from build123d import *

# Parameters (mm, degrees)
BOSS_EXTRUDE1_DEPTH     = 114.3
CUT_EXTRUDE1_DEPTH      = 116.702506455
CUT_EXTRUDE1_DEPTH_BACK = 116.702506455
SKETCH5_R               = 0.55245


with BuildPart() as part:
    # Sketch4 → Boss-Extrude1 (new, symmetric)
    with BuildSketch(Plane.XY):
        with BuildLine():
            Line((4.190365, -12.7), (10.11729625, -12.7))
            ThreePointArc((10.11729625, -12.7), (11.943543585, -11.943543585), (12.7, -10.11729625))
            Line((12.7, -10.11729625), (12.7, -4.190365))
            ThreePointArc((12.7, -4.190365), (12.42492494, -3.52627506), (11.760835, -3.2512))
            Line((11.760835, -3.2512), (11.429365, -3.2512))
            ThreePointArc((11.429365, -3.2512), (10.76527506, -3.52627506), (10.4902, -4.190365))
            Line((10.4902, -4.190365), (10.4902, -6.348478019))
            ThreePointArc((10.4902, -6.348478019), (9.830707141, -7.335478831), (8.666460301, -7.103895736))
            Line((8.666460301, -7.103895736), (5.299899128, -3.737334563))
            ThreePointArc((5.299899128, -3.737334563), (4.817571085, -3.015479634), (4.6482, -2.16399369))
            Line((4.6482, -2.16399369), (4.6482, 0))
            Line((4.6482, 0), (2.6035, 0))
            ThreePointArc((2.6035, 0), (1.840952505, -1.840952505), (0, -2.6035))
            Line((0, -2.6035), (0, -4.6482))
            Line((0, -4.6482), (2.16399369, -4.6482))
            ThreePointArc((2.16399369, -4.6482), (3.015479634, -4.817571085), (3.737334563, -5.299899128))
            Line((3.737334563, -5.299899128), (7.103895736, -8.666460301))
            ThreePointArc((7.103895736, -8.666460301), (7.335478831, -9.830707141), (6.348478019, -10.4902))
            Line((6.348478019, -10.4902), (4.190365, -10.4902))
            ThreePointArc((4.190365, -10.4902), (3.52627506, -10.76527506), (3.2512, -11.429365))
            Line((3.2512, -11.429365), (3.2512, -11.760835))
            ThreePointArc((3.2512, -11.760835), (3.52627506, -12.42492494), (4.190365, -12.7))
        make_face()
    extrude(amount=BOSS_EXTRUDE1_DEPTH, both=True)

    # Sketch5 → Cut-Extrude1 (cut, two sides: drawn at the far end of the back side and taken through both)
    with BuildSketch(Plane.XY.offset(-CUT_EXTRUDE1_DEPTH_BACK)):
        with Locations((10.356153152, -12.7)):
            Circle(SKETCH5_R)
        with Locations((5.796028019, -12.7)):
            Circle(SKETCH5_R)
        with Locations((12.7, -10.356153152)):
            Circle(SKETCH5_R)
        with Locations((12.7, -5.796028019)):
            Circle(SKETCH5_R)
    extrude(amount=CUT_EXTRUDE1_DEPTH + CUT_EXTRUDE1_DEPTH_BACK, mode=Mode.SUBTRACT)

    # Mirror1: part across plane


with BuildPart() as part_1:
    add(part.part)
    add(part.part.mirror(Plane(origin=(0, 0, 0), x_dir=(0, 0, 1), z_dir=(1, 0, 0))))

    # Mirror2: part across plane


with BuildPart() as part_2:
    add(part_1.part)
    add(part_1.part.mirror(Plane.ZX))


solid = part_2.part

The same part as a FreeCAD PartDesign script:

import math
import FreeCAD as App
import Part
import Sketcher
from FreeCAD import Vector
Q = App.Units.Quantity

doc = App.newDocument("Part")
body = doc.addObject("PartDesign::Body", "Body")

# Sketch on XY plane
sketch1 = body.newObject("Sketcher::SketchObject", "Sketch")
sketch1.AttachmentSupport = (doc.getObject("XY_Plane"), [""])
sketch1.MapMode = "FlatFace"
sketch1.addGeometry(Part.LineSegment(Vector(4.190365, -12.7, 0), Vector(10.117296, -12.7, 0)), False)
sketch1.addGeometry(Part.ArcOfCircle(Part.Circle(Vector(10.117296, -10.117296, 0), Vector(0, 0, 1), 2.582704), math.radians(-90), math.radians(0)), False)
sketch1.addGeometry(Part.LineSegment(Vector(12.7, -10.117296, 0), Vector(12.7, -4.190365, 0)), False)
sketch1.addGeometry(Part.ArcOfCircle(Part.Circle(Vector(11.760835, -4.190365, 0), Vector(0, 0, 1), 0.939165), math.radians(0), math.radians(90)), False)
sketch1.addGeometry(Part.LineSegment(Vector(11.760835, -3.2512, 0), Vector(11.429365, -3.2512, 0)), False)
sketch1.addGeometry(Part.ArcOfCircle(Part.Circle(Vector(11.429365, -4.190365, 0), Vector(0, 0, 1), 0.939165), math.radians(90), math.radians(180)), False)
sketch1.addGeometry(Part.LineSegment(Vector(10.4902, -4.190365, 0), Vector(10.4902, -6.348478, 0)), False)
sketch1.addGeometry(Part.ArcOfCircle(Part.Circle(Vector(9.421878, -6.348478, 0), Vector(0, 0, 1), 1.068322), math.radians(-135), math.radians(0)), False)
sketch1.addGeometry(Part.LineSegment(Vector(8.66646, -7.103896, 0), Vector(5.299899, -3.737335, 0)), False)
sketch1.addGeometry(Part.ArcOfCircle(Part.Circle(Vector(6.87324, -2.163994, 0), Vector(0, 0, 1), 2.22504), math.radians(-180), math.radians(-135)), False)
sketch1.addGeometry(Part.LineSegment(Vector(4.6482, -2.163994, 0), Vector(4.6482, 0, 0)), False)
sketch1.addGeometry(Part.LineSegment(Vector(4.6482, 0, 0), Vector(2.6035, 0, 0)), False)
sketch1.addGeometry(Part.ArcOfCircle(Part.Circle(Vector(0, 0, 0), Vector(0, 0, 1), 2.6035), math.radians(-90), math.radians(0)), False)
sketch1.addGeometry(Part.LineSegment(Vector(0, -2.6035, 0), Vector(0, -4.6482, 0)), False)
sketch1.addGeometry(Part.LineSegment(Vector(0, -4.6482, 0), Vector(2.163994, -4.6482, 0)), False)
sketch1.addGeometry(Part.ArcOfCircle(Part.Circle(Vector(2.163994, -6.87324, 0), Vector(0, 0, 1), 2.22504), math.radians(45), math.radians(90)), False)
sketch1.addGeometry(Part.LineSegment(Vector(3.737335, -5.299899, 0), Vector(7.103896, -8.66646, 0)), False)
sketch1.addGeometry(Part.ArcOfCircle(Part.Circle(Vector(6.348478, -9.421878, 0), Vector(0, 0, 1), 1.068322), math.radians(-90), math.radians(45)), False)
sketch1.addGeometry(Part.LineSegment(Vector(6.348478, -10.4902, 0), Vector(4.190365, -10.4902, 0)), False)
sketch1.addGeometry(Part.ArcOfCircle(Part.Circle(Vector(4.190365, -11.429365, 0), Vector(0, 0, 1), 0.939165), math.radians(90), math.radians(180)), False)
sketch1.addGeometry(Part.LineSegment(Vector(3.2512, -11.429365, 0), Vector(3.2512, -11.760835, 0)), False)
sketch1.addGeometry(Part.ArcOfCircle(Part.Circle(Vector(4.190365, -11.760835, 0), Vector(0, 0, 1), 0.939165), math.radians(-180), math.radians(-90)), False)
sketch1.addConstraint(Sketcher.Constraint("Tangent", 0, 2, 1, 1))
sketch1.addConstraint(Sketcher.Constraint("Tangent", 1, 2, 2, 1))
sketch1.addConstraint(Sketcher.Constraint("Tangent", 2, 2, 3, 1))
sketch1.addConstraint(Sketcher.Constraint("Tangent", 3, 2, 4, 1))
sketch1.addConstraint(Sketcher.Constraint("Tangent", 4, 2, 5, 1))
sketch1.addConstraint(Sketcher.Constraint("Tangent", 5, 2, 6, 1))
sketch1.addConstraint(Sketcher.Constraint("Tangent", 6, 2, 7, 2))
sketch1.addConstraint(Sketcher.Constraint("Tangent", 7, 1, 8, 1))
sketch1.addConstraint(Sketcher.Constraint("Tangent", 8, 2, 9, 2))
sketch1.addConstraint(Sketcher.Constraint("Tangent", 9, 1, 10, 1))
sketch1.addConstraint(Sketcher.Constraint("Coincident", 10, 2, 11, 1))
sketch1.addConstraint(Sketcher.Constraint("Coincident", 11, 2, 12, 2))
sketch1.addConstraint(Sketcher.Constraint("Coincident", 12, 1, 13, 1))
sketch1.addConstraint(Sketcher.Constraint("Coincident", 13, 2, 14, 1))
sketch1.addConstraint(Sketcher.Constraint("Tangent", 14, 2, 15, 2))
sketch1.addConstraint(Sketcher.Constraint("Tangent", 15, 1, 16, 1))
sketch1.addConstraint(Sketcher.Constraint("Tangent", 16, 2, 17, 2))
sketch1.addConstraint(Sketcher.Constraint("Tangent", 17, 1, 18, 1))
sketch1.addConstraint(Sketcher.Constraint("Tangent", 18, 2, 19, 1))
sketch1.addConstraint(Sketcher.Constraint("Tangent", 19, 2, 20, 1))
sketch1.addConstraint(Sketcher.Constraint("Tangent", 20, 2, 21, 1))
sketch1.addConstraint(Sketcher.Constraint("Tangent", 21, 2, 0, 1))
sketch1.addConstraint(Sketcher.Constraint("Horizontal", 0))
sketch1.addConstraint(Sketcher.Constraint("Vertical", 2))
sketch1.addConstraint(Sketcher.Constraint("Horizontal", 4))
sketch1.addConstraint(Sketcher.Constraint("Vertical", 6))
sketch1.addConstraint(Sketcher.Constraint("Vertical", 10))
sketch1.addConstraint(Sketcher.Constraint("Horizontal", 11))
sketch1.addConstraint(Sketcher.Constraint("Vertical", 13))
sketch1.addConstraint(Sketcher.Constraint("Horizontal", 14))
sketch1.addConstraint(Sketcher.Constraint("Horizontal", 18))
sketch1.addConstraint(Sketcher.Constraint("Vertical", 20))
sketch1.addConstraint(Sketcher.Constraint("Coincident", 12, 3, -1, 1))
sketch1.addConstraint(Sketcher.Constraint("Equal", 3, 5))
sketch1.addConstraint(Sketcher.Constraint("Equal", 9, 15))
sketch1.addConstraint(Sketcher.Constraint("Equal", 7, 17))
sketch1.addConstraint(Sketcher.Constraint("Equal", 5, 19))
sketch1.addConstraint(Sketcher.Constraint("Equal", 19, 21))
sketch1.addConstraint(Sketcher.Constraint("PointOnObject", 10, 2, -1))
sketch1.addConstraint(Sketcher.Constraint("PointOnObject", 12, 1, -2))
sketch1.addConstraint(Sketcher.Constraint("Parallel", 8, 16))
sketch1.addConstraint(Sketcher.Constraint("Equal", 0, 2))
sketch1.addConstraint(Sketcher.Constraint("Equal", 18, 6))
sketch1.addConstraint(Sketcher.Constraint("Equal", 14, 10))
sketch1.addConstraint(Sketcher.Constraint("Equal", 11, 13))
sketch1.addConstraint(Sketcher.Constraint("Equal", 4, 20))
sketch1.addConstraint(Sketcher.Constraint("Equal", 8, 16))
sketch1.addConstraint(Sketcher.Constraint("DistanceY", 0, 2, -1, 1, Q("0.5 in")))
sketch1.addConstraint(Sketcher.Constraint("Radius", 9, Q("0.0876 in")))
sketch1.addConstraint(Sketcher.Constraint("Radius", 12, Q("0.1025 in")))
sketch1.addConstraint(Sketcher.Constraint("DistanceX", 9, 1, 5, 2, Q("0.23 in")))
sketch1.addConstraint(Sketcher.Constraint("DistanceX", 11, 2, 11, 1, Q("0.0805 in")))
sketch1.addConstraint(Sketcher.Constraint("DistanceY", 3, 2, -1, 1, Q("0.128 in")))
sketch1.addConstraint(Sketcher.Constraint("Radius", 7, 1.068322))
sketch1.addConstraint(Sketcher.Constraint("DistanceX", 17, 3, 7, 3, Q("0.121 in")))
sketch1.addConstraint(Sketcher.Constraint("Radius", 1, 2.582704))
sketch1.addConstraint(Sketcher.Constraint("Radius", 3, 0.939165))
pad1 = body.newObject("PartDesign::Pad", "Pad")
pad1.Profile = sketch1
pad1.Length = Q("9 in")
pad1.Midplane = True

# Sketch on XY plane
sketch2 = body.newObject("Sketcher::SketchObject", "Sketch001")
sketch2.AttachmentSupport = (doc.getObject("XY_Plane"), [""])
sketch2.MapMode = "FlatFace"
sketch2.addGeometry(Part.Circle(Vector(10.356153, -12.7, 0), Vector(0, 0, 1), 0.55245), False)
sketch2.addGeometry(Part.Circle(Vector(5.796028, -12.7, 0), Vector(0, 0, 1), 0.55245), False)
sketch2.addGeometry(Part.Circle(Vector(12.7, -10.356153, 0), Vector(0, 0, 1), 0.55245), False)
sketch2.addGeometry(Part.Circle(Vector(12.7, -5.796028, 0), Vector(0, 0, 1), 0.55245), False)
sketch2.addConstraint(Sketcher.Constraint("Equal", 0, 1))
sketch2.addConstraint(Sketcher.Constraint("Equal", 1, 2))
sketch2.addConstraint(Sketcher.Constraint("Equal", 2, 3))
sketch2.addConstraint(Sketcher.Constraint("Horizontal", 0, 3, 1, 3))
sketch2.addConstraint(Sketcher.Constraint("Vertical", 2, 3, 3, 3))
sketch2.addConstraint(Sketcher.Constraint("Diameter", 0, Q("0.0435 in")))
sketch2.addConstraint(Sketcher.Constraint("DistanceY", 0, 3, -1, 1, Q("0.5 in")))
sketch2.addConstraint(Sketcher.Constraint("DistanceX", -1, 1, 2, 3, Q("0.5 in")))
sketch2.addConstraint(Sketcher.Constraint("DistanceX", -1, 1, 1, 3, 5.796028))
sketch2.addConstraint(Sketcher.Constraint("DistanceY", 3, 3, -1, 1, 5.796028))
sketch2.addConstraint(Sketcher.Constraint("DistanceX", -1, 1, 0, 3, 10.356153))
sketch2.addConstraint(Sketcher.Constraint("DistanceY", 2, 3, -1, 1, 10.356153))
pocket1 = body.newObject("PartDesign::Pocket", "Pocket")
pocket1.Profile = sketch2
pocket1.Type = "ThroughAll"
pocket1.Midplane = True
body2 = doc.addObject("PartDesign::Body", "Body001")
doc.recompute()

body2.BaseFeature = body
doc.recompute()

mirroring = doc.addObject("Part::Mirroring", "Mirroring")
mirroring.Source = body
mirroring.Base = Vector(0, 0, 0)
mirroring.Normal = Vector(1, 0, 0)
body3 = doc.addObject("PartDesign::Body", "Body002")
body3.BaseFeature = mirroring
boolean = body2.newObject("PartDesign::Boolean", "Boolean")
boolean.Type = "Fuse"
boolean.addObjects([body3])
doc.recompute()
body4 = doc.addObject("PartDesign::Body", "Body003")
doc.recompute()

body4.BaseFeature = body2
doc.recompute()

mirroring2 = doc.addObject("Part::Mirroring", "Mirroring001")
mirroring2.Source = body2
mirroring2.Base = Vector(0, 0, 0)
mirroring2.Normal = Vector(0, 1, 0)
body5 = doc.addObject("PartDesign::Body", "Body004")
body5.BaseFeature = mirroring2
boolean2 = body4.newObject("PartDesign::Boolean", "Boolean001")
boolean2.Type = "Fuse"
boolean2.addObjects([body5])
doc.recompute()
mirroring.Visibility = False
mirroring2.Visibility = False

doc.recompute()
